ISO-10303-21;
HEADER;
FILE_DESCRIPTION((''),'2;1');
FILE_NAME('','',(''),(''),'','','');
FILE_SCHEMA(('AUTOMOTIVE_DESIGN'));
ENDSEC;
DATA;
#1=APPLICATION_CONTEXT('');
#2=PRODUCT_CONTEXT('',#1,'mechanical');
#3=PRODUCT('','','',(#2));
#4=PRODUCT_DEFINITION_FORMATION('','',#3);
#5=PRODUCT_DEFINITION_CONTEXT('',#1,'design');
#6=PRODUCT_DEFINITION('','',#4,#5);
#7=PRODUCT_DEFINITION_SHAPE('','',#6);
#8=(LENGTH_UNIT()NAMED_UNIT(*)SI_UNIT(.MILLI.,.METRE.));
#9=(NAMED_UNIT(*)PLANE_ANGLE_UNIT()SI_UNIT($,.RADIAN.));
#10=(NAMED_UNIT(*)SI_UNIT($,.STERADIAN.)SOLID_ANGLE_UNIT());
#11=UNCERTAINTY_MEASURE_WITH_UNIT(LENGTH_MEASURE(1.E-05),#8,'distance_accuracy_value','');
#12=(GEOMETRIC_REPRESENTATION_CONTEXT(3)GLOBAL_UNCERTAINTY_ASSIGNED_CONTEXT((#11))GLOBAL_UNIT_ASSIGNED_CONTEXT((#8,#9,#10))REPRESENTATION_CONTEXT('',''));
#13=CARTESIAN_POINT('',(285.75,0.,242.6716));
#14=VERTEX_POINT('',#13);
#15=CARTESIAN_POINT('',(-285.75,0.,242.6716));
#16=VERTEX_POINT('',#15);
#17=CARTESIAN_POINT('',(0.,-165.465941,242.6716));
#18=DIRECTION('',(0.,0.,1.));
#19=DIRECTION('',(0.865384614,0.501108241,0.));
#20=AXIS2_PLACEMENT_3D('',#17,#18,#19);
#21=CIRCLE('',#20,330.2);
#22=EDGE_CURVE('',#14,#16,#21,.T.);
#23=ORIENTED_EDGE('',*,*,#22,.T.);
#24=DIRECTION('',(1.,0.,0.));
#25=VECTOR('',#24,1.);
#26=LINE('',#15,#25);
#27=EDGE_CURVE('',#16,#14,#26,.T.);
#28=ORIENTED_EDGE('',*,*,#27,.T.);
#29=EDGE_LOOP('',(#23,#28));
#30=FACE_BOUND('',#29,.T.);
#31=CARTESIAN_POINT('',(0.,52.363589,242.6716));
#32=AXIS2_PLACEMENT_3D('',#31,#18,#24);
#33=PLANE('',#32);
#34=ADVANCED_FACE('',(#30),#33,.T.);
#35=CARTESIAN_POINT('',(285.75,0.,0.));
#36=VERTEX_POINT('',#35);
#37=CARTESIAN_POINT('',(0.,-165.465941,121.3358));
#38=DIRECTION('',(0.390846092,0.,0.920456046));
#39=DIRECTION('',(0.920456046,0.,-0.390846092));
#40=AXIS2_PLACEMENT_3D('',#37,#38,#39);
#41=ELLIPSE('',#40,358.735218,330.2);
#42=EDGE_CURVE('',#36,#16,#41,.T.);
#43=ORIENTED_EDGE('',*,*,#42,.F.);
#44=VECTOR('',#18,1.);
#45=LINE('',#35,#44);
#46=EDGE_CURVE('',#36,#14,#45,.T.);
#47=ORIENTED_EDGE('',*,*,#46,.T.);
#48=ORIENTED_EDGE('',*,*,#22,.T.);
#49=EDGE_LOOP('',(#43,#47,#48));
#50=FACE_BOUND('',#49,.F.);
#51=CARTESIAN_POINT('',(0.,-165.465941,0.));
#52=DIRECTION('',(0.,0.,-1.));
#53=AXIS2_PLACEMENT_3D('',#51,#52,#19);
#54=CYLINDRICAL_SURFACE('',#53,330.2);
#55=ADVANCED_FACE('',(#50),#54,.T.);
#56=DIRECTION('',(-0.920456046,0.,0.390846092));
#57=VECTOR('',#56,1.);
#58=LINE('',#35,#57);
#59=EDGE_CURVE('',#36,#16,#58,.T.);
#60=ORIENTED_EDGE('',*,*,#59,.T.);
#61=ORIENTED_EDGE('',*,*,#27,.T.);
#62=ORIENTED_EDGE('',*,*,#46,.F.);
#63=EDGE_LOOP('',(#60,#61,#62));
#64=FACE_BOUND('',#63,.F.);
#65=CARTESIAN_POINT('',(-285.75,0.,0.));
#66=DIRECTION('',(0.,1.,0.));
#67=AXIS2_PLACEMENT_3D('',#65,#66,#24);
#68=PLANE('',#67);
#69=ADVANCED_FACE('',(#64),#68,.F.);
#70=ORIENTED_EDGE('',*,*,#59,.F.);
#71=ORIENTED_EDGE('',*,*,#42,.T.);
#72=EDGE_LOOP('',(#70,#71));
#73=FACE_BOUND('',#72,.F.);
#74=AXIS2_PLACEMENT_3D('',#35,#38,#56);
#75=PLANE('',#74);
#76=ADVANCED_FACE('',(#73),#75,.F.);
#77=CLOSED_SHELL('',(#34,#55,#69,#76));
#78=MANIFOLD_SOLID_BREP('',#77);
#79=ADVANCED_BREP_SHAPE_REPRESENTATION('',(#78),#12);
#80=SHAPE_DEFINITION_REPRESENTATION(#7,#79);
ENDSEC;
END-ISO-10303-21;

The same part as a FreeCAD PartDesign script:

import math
import FreeCAD as App
import Part
import Sketcher
from FreeCAD import Vector
Q = App.Units.Quantity

doc = App.newDocument("Part")
body = doc.addObject("PartDesign::Body", "Body")

sketch1 = doc.addObject("Sketcher::SketchObject", "Sketch")
body.addObject(sketch1)
sketch1.AttachmentSupport = (doc.XY_Plane, [""])
sketch1.MapMode = "FlatFace"
sketch1.addGeometry([
    Part.ArcOfCircle(Part.Circle(Vector(0, -165, 0), Vector(0, 0, 1), 330), math.radians(30), math.radians(150)),
    Part.LineSegment(Vector(-286, 0, 0), Vector(286, 0, 0)),
], False)
sketch1.addConstraint([
    Sketcher.Constraint("Coincident", 0, 1, 1, 2),
    Sketcher.Constraint("Coincident", 1, 1, 0, 2),
    Sketcher.Constraint("Horizontal", 1),
    Sketcher.Constraint("Symmetric", 0, 1, 1, 1, -1, 1),
    Sketcher.Constraint("Radius", 0, Q("13 in")),
    Sketcher.Constraint("DistanceX", 1, 1, 1, 2, Q("22.5 in")),
])
pad1 = doc.addObject("PartDesign::Pad", "Pad")
body.addObject(pad1)
pad1.Profile = sketch1
pad1.Length = Q("9.554 in")

sketch2 = doc.addObject("Sketcher::SketchObject", "Sketch001")
body.addObject(sketch2)
sketch2.AttachmentSupport = (doc.XZ_Plane, [""])
sketch2.MapMode = "FlatFace"
sketch2.addGeometry([
    Part.LineSegment(Vector(286, 0, 0), Vector(-286, 243, 0)),
    Part.LineSegment(Vector(-286, 243, 0), Vector(-286, 0, 0)),
    Part.LineSegment(Vector(-286, 0, 0), Vector(286, 0, 0)),
], False)
sketch2.addConstraint([
    Sketcher.Constraint("Coincident", 0, 2, 1, 1),
    Sketcher.Constraint("Coincident", 1, 2, 2, 1),
    Sketcher.Constraint("Coincident", 2, 2, 0, 1),
    Sketcher.Constraint("Vertical", 1),
    Sketcher.Constraint("Horizontal", 2),
    Sketcher.Constraint("Symmetric", 1, 2, 2, 2, -1, 1),
    Sketcher.Constraint("DistanceX", 2, 1, 2, 2, Q("22.5 in")),
    Sketcher.Constraint("DistanceY", 1, 2, 1, 1, Q("9.554 in")),
])
pocket1 = doc.addObject("PartDesign::Pocket", "Pocket")
body.addObject(pocket1)
pocket1.Profile = sketch2
pocket1.Length = Q("20 in")

doc.recompute()
